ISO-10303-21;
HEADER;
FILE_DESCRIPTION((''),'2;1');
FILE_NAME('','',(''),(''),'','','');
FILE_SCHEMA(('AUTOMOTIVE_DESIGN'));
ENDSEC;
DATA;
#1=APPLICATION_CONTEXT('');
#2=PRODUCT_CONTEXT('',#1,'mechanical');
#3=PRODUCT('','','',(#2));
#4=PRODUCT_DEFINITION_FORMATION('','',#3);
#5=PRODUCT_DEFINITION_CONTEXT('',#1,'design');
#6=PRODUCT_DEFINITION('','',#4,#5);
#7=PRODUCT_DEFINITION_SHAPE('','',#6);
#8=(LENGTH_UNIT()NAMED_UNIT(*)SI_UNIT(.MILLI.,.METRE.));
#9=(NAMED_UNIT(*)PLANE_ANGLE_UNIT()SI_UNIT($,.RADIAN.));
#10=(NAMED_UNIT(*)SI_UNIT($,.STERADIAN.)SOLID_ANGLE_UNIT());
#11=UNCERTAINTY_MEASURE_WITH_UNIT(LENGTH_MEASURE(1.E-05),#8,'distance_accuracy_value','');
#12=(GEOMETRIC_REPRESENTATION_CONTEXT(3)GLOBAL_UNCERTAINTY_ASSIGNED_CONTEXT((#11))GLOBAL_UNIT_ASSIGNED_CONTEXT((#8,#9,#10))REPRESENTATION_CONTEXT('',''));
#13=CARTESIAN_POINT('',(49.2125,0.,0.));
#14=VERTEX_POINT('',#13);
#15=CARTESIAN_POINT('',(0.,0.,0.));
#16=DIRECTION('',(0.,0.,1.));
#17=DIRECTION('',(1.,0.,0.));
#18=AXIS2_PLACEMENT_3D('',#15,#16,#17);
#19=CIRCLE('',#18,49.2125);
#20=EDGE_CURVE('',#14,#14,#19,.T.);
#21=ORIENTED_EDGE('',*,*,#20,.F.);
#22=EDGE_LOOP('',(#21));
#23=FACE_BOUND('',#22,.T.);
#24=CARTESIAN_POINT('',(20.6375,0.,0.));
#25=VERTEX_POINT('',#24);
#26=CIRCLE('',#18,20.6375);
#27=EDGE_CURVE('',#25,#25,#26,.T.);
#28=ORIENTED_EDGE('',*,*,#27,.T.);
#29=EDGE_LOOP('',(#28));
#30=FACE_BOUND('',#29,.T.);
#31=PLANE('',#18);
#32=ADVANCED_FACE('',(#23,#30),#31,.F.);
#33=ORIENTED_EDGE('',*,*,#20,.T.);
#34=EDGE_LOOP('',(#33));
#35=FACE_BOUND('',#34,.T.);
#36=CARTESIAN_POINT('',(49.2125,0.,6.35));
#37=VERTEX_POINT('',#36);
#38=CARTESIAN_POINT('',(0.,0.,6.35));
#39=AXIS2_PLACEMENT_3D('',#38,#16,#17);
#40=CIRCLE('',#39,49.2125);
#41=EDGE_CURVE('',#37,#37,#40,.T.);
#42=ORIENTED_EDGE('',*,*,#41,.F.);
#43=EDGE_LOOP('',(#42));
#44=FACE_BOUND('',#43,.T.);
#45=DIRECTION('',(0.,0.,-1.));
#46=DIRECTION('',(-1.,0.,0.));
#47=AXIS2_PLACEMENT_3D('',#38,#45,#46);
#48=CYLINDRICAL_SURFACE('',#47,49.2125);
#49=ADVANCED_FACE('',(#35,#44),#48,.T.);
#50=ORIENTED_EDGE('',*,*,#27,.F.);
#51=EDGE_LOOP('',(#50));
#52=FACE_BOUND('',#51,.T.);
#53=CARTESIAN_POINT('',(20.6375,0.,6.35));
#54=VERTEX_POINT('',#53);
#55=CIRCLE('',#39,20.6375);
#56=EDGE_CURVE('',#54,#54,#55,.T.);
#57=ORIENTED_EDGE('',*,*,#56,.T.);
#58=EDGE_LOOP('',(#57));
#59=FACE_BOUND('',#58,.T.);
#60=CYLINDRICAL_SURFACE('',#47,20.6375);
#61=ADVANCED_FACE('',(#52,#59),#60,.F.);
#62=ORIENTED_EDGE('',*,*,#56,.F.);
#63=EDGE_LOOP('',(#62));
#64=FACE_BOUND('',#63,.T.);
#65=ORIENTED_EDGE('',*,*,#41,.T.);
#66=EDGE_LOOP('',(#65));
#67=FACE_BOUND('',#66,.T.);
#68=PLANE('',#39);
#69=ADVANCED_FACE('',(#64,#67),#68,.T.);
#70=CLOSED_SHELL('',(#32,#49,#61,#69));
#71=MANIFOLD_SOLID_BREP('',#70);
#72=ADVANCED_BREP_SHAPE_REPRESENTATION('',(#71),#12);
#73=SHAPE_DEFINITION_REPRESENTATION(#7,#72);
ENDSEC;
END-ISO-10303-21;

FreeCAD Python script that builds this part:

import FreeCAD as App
import Part
import Sketcher

V = App.Vector
Q = App.Units.Quantity

doc = App.newDocument("Part")
params = doc.addObject("Spreadsheet::Sheet", "Params")
for row, (alias, value) in enumerate([
    ("sketch1_diameter", "3.875 in"),
    ("sketch1_diameter2", "1.625 in"),
    ("pad1_length", "0.25 in"),
], start=1):
    params.set(f"A{row}", alias)
    params.set(f"B{row}", "=" + value)
    params.setAlias(f"B{row}", alias)

body = doc.addObject("PartDesign::Body", "Body")

# Sketch on XY plane
sketch1 = body.newObject("Sketcher::SketchObject", "Sketch")
sketch1.AttachmentSupport = (doc.getObject("XY_Plane"), [""])
sketch1.MapMode = "FlatFace"
sketch1.addGeometry(Part.Circle(V(0, 0, 0), V(0, 0, 1), 49), False)
sketch1.addGeometry(Part.Circle(V(0, 0, 0), V(0, 0, 1), 21), False)
sketch1.addConstraint(Sketcher.Constraint("Coincident", 0, 3, -1, 1))
sketch1.addConstraint(Sketcher.Constraint("Coincident", 1, 3, -1, 1))
sketch1.addConstraint(Sketcher.Constraint("Diameter", 0, Q("3.875 in")))
sketch1.addConstraint(Sketcher.Constraint("Diameter", 1, Q("1.625 in")))
sketch1.setExpression("Constraints[2]", "Params.sketch1_diameter")
sketch1.setExpression("Constraints[3]", "Params.sketch1_diameter2")
pad1 = body.newObject("PartDesign::Pad", "Pad")
pad1.Profile = sketch1
pad1.setExpression("Length", "Params.pad1_length")

doc.recompute()
